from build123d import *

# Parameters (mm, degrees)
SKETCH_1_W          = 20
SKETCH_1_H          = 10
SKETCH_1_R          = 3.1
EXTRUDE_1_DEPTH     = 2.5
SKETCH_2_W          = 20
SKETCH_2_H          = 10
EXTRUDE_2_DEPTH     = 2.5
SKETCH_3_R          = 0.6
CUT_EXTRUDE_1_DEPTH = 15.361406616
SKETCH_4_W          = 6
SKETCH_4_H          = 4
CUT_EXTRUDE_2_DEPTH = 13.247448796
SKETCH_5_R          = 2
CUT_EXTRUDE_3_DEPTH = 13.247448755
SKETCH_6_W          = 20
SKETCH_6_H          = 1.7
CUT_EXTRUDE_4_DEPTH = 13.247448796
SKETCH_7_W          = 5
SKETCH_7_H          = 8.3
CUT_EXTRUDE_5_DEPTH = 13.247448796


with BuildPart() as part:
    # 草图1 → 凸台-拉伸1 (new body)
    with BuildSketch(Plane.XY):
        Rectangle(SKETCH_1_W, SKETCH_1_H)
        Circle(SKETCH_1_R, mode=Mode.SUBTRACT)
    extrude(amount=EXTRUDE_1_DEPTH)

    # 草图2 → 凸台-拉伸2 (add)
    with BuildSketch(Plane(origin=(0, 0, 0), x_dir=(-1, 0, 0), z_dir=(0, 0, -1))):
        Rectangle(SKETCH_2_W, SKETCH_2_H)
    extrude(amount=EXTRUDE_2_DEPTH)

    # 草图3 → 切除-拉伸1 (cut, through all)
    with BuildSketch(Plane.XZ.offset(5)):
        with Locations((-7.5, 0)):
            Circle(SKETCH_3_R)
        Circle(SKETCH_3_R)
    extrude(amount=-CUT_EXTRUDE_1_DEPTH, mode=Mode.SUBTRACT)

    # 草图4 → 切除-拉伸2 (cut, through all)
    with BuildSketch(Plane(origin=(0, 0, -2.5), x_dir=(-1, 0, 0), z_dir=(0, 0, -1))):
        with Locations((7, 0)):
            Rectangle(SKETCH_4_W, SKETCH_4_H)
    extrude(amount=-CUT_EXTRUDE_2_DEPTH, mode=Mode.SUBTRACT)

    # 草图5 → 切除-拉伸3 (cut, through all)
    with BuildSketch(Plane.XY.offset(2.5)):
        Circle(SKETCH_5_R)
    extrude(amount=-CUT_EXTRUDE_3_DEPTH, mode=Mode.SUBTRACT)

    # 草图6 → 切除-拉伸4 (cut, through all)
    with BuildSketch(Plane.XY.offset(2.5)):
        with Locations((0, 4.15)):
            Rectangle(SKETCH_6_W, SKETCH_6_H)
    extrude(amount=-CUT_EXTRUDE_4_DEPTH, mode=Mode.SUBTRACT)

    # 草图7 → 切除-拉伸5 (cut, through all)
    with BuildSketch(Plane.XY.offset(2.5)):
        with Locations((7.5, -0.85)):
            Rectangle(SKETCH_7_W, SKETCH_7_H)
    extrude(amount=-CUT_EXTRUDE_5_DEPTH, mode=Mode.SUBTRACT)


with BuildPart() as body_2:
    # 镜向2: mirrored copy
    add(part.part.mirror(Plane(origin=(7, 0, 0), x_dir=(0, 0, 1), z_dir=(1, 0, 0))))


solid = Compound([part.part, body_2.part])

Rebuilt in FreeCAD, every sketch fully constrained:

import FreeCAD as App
import Part
import Sketcher

V = App.Vector

doc = App.newDocument("Part")
body = doc.addObject("PartDesign::Body", "Body")

# Sketch on XY plane
sketch1 = doc.addObject("Sketcher::SketchObject", "Sketch")
body.addObject(sketch1)
sketch1.AttachmentSupport = (doc.XY_Plane, [""])
sketch1.MapMode = "FlatFace"
sketch1.addGeometry([
    Part.LineSegment(V(-10, 5, 0), V(-10, -5, 0)),  # 0
    Part.LineSegment(V(-10, -5, 0), V(10, -5, 0)),  # 1
    Part.LineSegment(V(10, -5, 0), V(10, 5, 0)),  # 2
    Part.LineSegment(V(10, 5, 0), V(-10, 5, 0)),  # 3
    Part.Circle(V(0, 0, 0), V(0, 0, 1), 3.1),  # 4
], False)
sketch1.addConstraint([
    Sketcher.Constraint("Coincident", 0, 2, 1, 1),
    Sketcher.Constraint("Coincident", 1, 2, 2, 1),
    Sketcher.Constraint("Coincident", 2, 2, 3, 1),
    Sketcher.Constraint("Coincident", 3, 2, 0, 1),
    Sketcher.Constraint("Vertical", 0),
    Sketcher.Constraint("Horizontal", 1),
    Sketcher.Constraint("Vertical", 2),
    Sketcher.Constraint("Horizontal", 3),
    Sketcher.Constraint("Coincident", 4, 3, -1, 1),
    Sketcher.Constraint("Symmetric", 0, 2, 2, 2, -1, 1),
    Sketcher.Constraint("Diameter", 4, 6.2),
    Sketcher.Constraint("DistanceX", 1, 1, 1, 2, 20.0),
    Sketcher.Constraint("DistanceY", 0, 2, 0, 1, 10.0),
])
pad1 = doc.addObject("PartDesign::Pad", "Pad")
body.addObject(pad1)
pad1.Profile = sketch1
pad1.Length = 2.5

# Sketch on XY plane
sketch2 = doc.addObject("Sketcher::SketchObject", "Sketch001")
body.addObject(sketch2)
sketch2.AttachmentSupport = (doc.XY_Plane, [""])
sketch2.MapMode = "FlatFace"
sketch2.addGeometry([
    Part.LineSegment(V(10, 5, 0), V(10, -5, 0)),
    Part.LineSegment(V(10, -5, 0), V(-10, -5, 0)),
    Part.LineSegment(V(-10, -5, 0), V(-10, 5, 0)),
    Part.LineSegment(V(-10, 5, 0), V(10, 5, 0)),
], False)
sketch2.addConstraint([
    Sketcher.Constraint("Coincident", 0, 2, 1, 1),
    Sketcher.Constraint("Coincident", 1, 2, 2, 1),
    Sketcher.Constraint("Coincident", 2, 2, 3, 1),
    Sketcher.Constraint("Coincident", 3, 2, 0, 1),
    Sketcher.Constraint("Vertical", 0),
    Sketcher.Constraint("Horizontal", 1),
    Sketcher.Constraint("Vertical", 2),
    Sketcher.Constraint("Horizontal", 3),
    Sketcher.Constraint("Symmetric", 0, 2, 2, 2, -1, 1),
    Sketcher.Constraint("DistanceX", 1, 2, 1, 1, 20.0),
    Sketcher.Constraint("DistanceY", 0, 2, 0, 1, 10.0),
])
pad2 = doc.addObject("PartDesign::Pad", "Pad001")
body.addObject(pad2)
pad2.Profile = sketch2
pad2.Length = 2.5
pad2.Reversed = True

# Sketch on XZ plane
sketch3 = doc.addObject("Sketcher::SketchObject", "Sketch002")
body.addObject(sketch3)
sketch3.AttachmentSupport = (doc.XZ_Plane, [""])
sketch3.MapMode = "FlatFace"
sketch3.AttachmentOffset = App.Placement(V(0, 0, 5), App.Rotation())
sketch3.addGeometry([
    Part.Circle(V(-7.5, 0, 0), V(0, 0, 1), 0.6),
    Part.Circle(V(0, 0, 0), V(0, 0, 1), 0.6),
], False)
sketch3.addConstraint([
    Sketcher.Constraint("Coincident", 1, 3, -1, 1),
    Sketcher.Constraint("Equal", 0, 1),
    Sketcher.Constraint("PointOnObject", 0, 3, -1),
    Sketcher.Constraint("Diameter", 0, 1.2),
    Sketcher.Constraint("DistanceX", 0, 3, -1, 1, 7.5),
])
pocket1 = doc.addObject("PartDesign::Pocket", "Pocket")
body.addObject(pocket1)
pocket1.Profile = sketch3
pocket1.Type = "ThroughAll"

# Sketch on XY plane
sketch4 = doc.addObject("Sketcher::SketchObject", "Sketch003")
body.addObject(sketch4)
sketch4.AttachmentSupport = (doc.XY_Plane, [""])
sketch4.MapMode = "FlatFace"
sketch4.AttachmentOffset = App.Placement(V(0, 0, -2.5), App.Rotation())
sketch4.addGeometry([
    Part.LineSegment(V(-4, 2, 0), V(-4, -2, 0)),
    Part.LineSegment(V(-4, -2, 0), V(-10, -2, 0)),
    Part.LineSegment(V(-10, -2, 0), V(-10, 2, 0)),
    Part.LineSegment(V(-10, 2, 0), V(-4, 2, 0)),
], False)
sketch4.addConstraint([
    Sketcher.Constraint("Coincident", 0, 2, 1, 1),
    Sketcher.Constraint("Coincident", 1, 2, 2, 1),
    Sketcher.Constraint("Coincident", 2, 2, 3, 1),
    Sketcher.Constraint("Coincident", 3, 2, 0, 1),
    Sketcher.Constraint("Vertical", 0),
    Sketcher.Constraint("Horizontal", 1),
    Sketcher.Constraint("Vertical", 2),
    Sketcher.Constraint("Horizontal", 3),
    Sketcher.Constraint("DistanceX", 1, 2, 1, 1, 6.0),
    Sketcher.Constraint("DistanceY", 0, 2, 0, 1, 4.0),
    Sketcher.Constraint("DistanceX", 0, 2, -1, 1, 4.0),
    Sketcher.Constraint("DistanceY", 0, 2, -1, 1, 2.0),
])
pocket2 = doc.addObject("PartDesign::Pocket", "Pocket001")
body.addObject(pocket2)
pocket2.Profile = sketch4
pocket2.Type = "ThroughAll"
pocket2.Reversed = True

# Sketch on XY plane
sketch5 = doc.addObject("Sketcher::SketchObject", "Sketch004")
body.addObject(sketch5)
sketch5.AttachmentSupport = (doc.XY_Plane, [""])
sketch5.MapMode = "FlatFace"
sketch5.AttachmentOffset = App.Placement(V(0, 0, 2.5), App.Rotation())
sketch5.addGeometry(Part.Circle(V(0, 0, 0), V(0, 0, 1), 2), False)
sketch5.addConstraint([
    Sketcher.Constraint("Coincident", 0, 3, -1, 1),
    Sketcher.Constraint("Diameter", 0, 4.0),
])
pocket3 = doc.addObject("PartDesign::Pocket", "Pocket002")
body.addObject(pocket3)
pocket3.Profile = sketch5
pocket3.Type = "ThroughAll"

# Sketch on XY plane
sketch6 = doc.addObject("Sketcher::SketchObject", "Sketch005")
body.addObject(sketch6)
sketch6.AttachmentSupport = (doc.XY_Plane, [""])
sketch6.MapMode = "FlatFace"
sketch6.AttachmentOffset = App.Placement(V(0, 0, 2.5), App.Rotation())
sketch6.addGeometry([
    Part.LineSegment(V(-10, 5, 0), V(-10, 3.3, 0)),
    Part.LineSegment(V(-10, 3.3, 0), V(10, 3.3, 0)),
    Part.LineSegment(V(10, 3.3, 0), V(10, 5, 0)),
    Part.LineSegment(V(10, 5, 0), V(-10, 5, 0)),
], False)
sketch6.addConstraint([
    Sketcher.Constraint("Coincident", 0, 2, 1, 1),
    Sketcher.Constraint("Coincident", 1, 2, 2, 1),
    Sketcher.Constraint("Coincident", 2, 2, 3, 1),
    Sketcher.Constraint("Coincident", 3, 2, 0, 1),
    Sketcher.Constraint("Vertical", 0),
    Sketcher.Constraint("Horizontal", 1),
    Sketcher.Constraint("Vertical", 2),
    Sketcher.Constraint("Horizontal", 3),
    Sketcher.Constraint("DistanceX", 1, 1, 1, 2, 20.0),
    Sketcher.Constraint("DistanceY", 0, 2, 0, 1, 1.7),
    Sketcher.Constraint("DistanceX", 0, 2, -1, 1, 10.0),
    Sketcher.Constraint("DistanceY", -1, 1, 2, 2, 5.0),
])
pocket4 = doc.addObject("PartDesign::Pocket", "Pocket003")
body.addObject(pocket4)
pocket4.Profile = sketch6
pocket4.Type = "ThroughAll"

# Sketch on XY plane
sketch7 = doc.addObject("Sketcher::SketchObject", "Sketch006")
body.addObject(sketch7)
sketch7.AttachmentSupport = (doc.XY_Plane, [""])
sketch7.MapMode = "FlatFace"
sketch7.AttachmentOffset = App.Placement(V(0, 0, 2.5), App.Rotation())
sketch7.addGeometry([
    Part.LineSegment(V(5, 3, 0), V(5, -5, 0)),
    Part.LineSegment(V(5, -5, 0), V(10, -5, 0)),
    Part.LineSegment(V(10, -5, 0), V(10, 3, 0)),
    Part.LineSegment(V(10, 3, 0), V(5, 3, 0)),
], False)
sketch7.addConstraint([
    Sketcher.Constraint("Coincident", 0, 2, 1, 1),
    Sketcher.Constraint("Coincident", 1, 2, 2, 1),
    Sketcher.Constraint("Coincident", 2, 2, 3, 1),
    Sketcher.Constraint("Coincident", 3, 2, 0, 1),
    Sketcher.Constraint("Vertical", 0),
    Sketcher.Constraint("Horizontal", 1),
    Sketcher.Constraint("Vertical", 2),
    Sketcher.Constraint("Horizontal", 3),
    Sketcher.Constraint("DistanceX", 1, 1, 1, 2, 5.0),
    Sketcher.Constraint("DistanceY", 0, 2, 0, 1, 8.3),
    Sketcher.Constraint("DistanceX", -1, 1, 0, 2, 5.0),
    Sketcher.Constraint("DistanceY", 0, 2, -1, 1, 5.0),
])
pocket5 = doc.addObject("PartDesign::Pocket", "Pocket004")
body.addObject(pocket5)
pocket5.Profile = sketch7
pocket5.Type = "ThroughAll"
body2 = doc.addObject("PartDesign::Body", "Body001")
doc.recompute()

mirroring = doc.addObject("Part::Mirroring", "Mirroring")
mirroring.Source = body
mirroring.Base = V(7, 0, 0)
mirroring.Normal = V(1, 0, 0)
body2.BaseFeature = mirroring
doc.recompute()
mirroring.Visibility = False

doc.recompute()
